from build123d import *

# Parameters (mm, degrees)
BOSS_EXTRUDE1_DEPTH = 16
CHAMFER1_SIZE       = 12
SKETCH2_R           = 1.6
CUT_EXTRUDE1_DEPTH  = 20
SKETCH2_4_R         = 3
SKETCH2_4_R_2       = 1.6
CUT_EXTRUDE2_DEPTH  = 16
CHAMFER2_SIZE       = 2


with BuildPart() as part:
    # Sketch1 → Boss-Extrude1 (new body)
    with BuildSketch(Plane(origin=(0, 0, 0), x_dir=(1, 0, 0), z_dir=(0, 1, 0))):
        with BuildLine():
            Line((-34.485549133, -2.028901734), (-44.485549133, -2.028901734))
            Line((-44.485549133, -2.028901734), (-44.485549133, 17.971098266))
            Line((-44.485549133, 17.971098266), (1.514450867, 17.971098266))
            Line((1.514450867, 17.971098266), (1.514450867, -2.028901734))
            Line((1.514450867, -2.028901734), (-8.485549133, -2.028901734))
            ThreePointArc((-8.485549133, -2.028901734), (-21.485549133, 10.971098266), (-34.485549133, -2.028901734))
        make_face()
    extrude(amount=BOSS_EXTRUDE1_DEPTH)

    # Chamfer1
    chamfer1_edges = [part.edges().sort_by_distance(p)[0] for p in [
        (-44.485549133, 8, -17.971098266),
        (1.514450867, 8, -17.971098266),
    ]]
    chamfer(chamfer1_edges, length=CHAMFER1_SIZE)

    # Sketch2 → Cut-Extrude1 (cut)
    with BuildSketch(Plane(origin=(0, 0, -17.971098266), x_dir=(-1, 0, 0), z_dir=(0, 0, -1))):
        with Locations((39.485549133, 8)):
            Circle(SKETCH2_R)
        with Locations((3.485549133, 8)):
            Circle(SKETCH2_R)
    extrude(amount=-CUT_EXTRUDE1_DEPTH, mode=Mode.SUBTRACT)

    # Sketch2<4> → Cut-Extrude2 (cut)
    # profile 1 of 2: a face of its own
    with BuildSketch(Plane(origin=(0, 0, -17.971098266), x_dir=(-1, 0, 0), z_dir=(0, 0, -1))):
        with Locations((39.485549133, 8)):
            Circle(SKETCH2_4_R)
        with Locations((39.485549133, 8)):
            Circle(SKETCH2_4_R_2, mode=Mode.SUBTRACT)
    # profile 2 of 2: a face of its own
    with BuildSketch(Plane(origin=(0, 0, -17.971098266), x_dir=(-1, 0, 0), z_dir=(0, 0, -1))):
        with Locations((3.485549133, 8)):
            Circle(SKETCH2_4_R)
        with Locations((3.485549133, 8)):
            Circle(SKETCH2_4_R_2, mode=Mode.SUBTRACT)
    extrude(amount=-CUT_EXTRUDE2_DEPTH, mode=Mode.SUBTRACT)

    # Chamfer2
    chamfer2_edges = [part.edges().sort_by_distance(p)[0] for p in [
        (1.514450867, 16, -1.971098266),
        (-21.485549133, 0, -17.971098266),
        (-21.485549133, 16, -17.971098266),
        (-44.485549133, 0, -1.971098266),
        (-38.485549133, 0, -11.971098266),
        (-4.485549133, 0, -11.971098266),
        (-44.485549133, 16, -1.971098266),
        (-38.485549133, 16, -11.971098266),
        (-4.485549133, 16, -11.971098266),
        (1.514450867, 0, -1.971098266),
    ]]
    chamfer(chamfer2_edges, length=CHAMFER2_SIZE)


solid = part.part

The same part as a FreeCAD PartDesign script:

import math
import FreeCAD as App
import Part
import Sketcher
from FreeCAD import Vector


def edges_at(feature, points):
    """Names of the edges that pass closest to the given points."""
    edges = feature.Shape.Edges
    near = lambda p: min(range(len(edges)), key=lambda i: edges[i].distToShape(Part.Vertex(*p))[0])
    return sorted({f"Edge{near(p) + 1}" for p in points})

doc = App.newDocument("Part")
body = doc.addObject("PartDesign::Body", "Body")

# Sketch on XZ plane
sketch1 = body.newObject("Sketcher::SketchObject", "Sketch")
sketch1.AttachmentSupport = (doc.getObject("XZ_Plane"), [""])
sketch1.MapMode = "FlatFace"
sketch1.addGeometry(Part.LineSegment(Vector(-44, 2, 0), Vector(-34, 2, 0)), False)
sketch1.addGeometry(Part.ArcOfCircle(Part.Circle(Vector(-21, 2, 0), Vector(0, 0, 1), 13), math.radians(180), math.radians(360)), False)
sketch1.addGeometry(Part.LineSegment(Vector(-8, 2, 0), Vector(2, 2, 0)), False)
sketch1.addGeometry(Part.LineSegment(Vector(2, 2, 0), Vector(2, -18, 0)), False)
sketch1.addGeometry(Part.LineSegment(Vector(2, -18, 0), Vector(-44, -18, 0)), False)
sketch1.addGeometry(Part.LineSegment(Vector(-44, -18, 0), Vector(-44, 2, 0)), False)
sketch1.addConstraint(Sketcher.Constraint("Coincident", 0, 2, 1, 1))
sketch1.addConstraint(Sketcher.Constraint("Coincident", 1, 2, 2, 1))
sketch1.addConstraint(Sketcher.Constraint("Coincident", 2, 2, 3, 1))
sketch1.addConstraint(Sketcher.Constraint("Coincident", 3, 2, 4, 1))
sketch1.addConstraint(Sketcher.Constraint("Coincident", 4, 2, 5, 1))
sketch1.addConstraint(Sketcher.Constraint("Coincident", 5, 2, 0, 1))
sketch1.addConstraint(Sketcher.Constraint("Horizontal", 0))
sketch1.addConstraint(Sketcher.Constraint("Horizontal", 2))
sketch1.addConstraint(Sketcher.Constraint("Vertical", 3))
sketch1.addConstraint(Sketcher.Constraint("Horizontal", 4))
sketch1.addConstraint(Sketcher.Constraint("Vertical", 5))
sketch1.addConstraint(Sketcher.Constraint("Horizontal", 1, 3, 0, 2))
sketch1.addConstraint(Sketcher.Constraint("Horizontal", 0, 2, 1, 2))
sketch1.addConstraint(Sketcher.Constraint("Equal", 0, 2))
sketch1.addConstraint(Sketcher.Constraint("Radius", 1, 13.0))
sketch1.addConstraint(Sketcher.Constraint("DistanceX", 0, 1, 0, 2, 10.0))
sketch1.addConstraint(Sketcher.Constraint("DistanceY", 3, 2, 3, 1, 20.0))
sketch1.addConstraint(Sketcher.Constraint("DistanceY", -1, 1, 1, 3, 2.028902))
sketch1.addConstraint(Sketcher.Constraint("DistanceX", 1, 3, -1, 1, 21.485549))
pad1 = body.newObject("PartDesign::Pad", "Pad")
pad1.Profile = sketch1
pad1.Length = 16
pad1.Reversed = True
doc.recompute()

chamfer = body.newObject("PartDesign::Chamfer", "Chamfer")
chamfer.Base = (pad1, edges_at(pad1, [(-44.486, 8, -17.971), (1.514, 8, -17.971)]))
chamfer.Size = 12

# Sketch on XY plane
sketch2 = body.newObject("Sketcher::SketchObject", "Sketch001")
sketch2.AttachmentSupport = (doc.getObject("XY_Plane"), [""])
sketch2.MapMode = "FlatFace"
sketch2.AttachmentOffset = App.Placement(Vector(0, 0, -17.971098), App.Rotation())
sketch2.addGeometry(Part.Circle(Vector(-39.5, 8, 0), Vector(0, 0, 1), 1.6), False)
sketch2.addGeometry(Part.Circle(Vector(-3.5, 8, 0), Vector(0, 0, 1), 1.6), False)
sketch2.addConstraint(Sketcher.Constraint("Equal", 0, 1))
sketch2.addConstraint(Sketcher.Constraint("Horizontal", 0, 3, 1, 3))
sketch2.addConstraint(Sketcher.Constraint("Diameter", 0, 3.2))
sketch2.addConstraint(Sketcher.Constraint("DistanceY", -1, 1, 0, 3, 8.0))
sketch2.addConstraint(Sketcher.Constraint("DistanceX", 0, 3, 1, 3, 36.0))
sketch2.addConstraint(Sketcher.Constraint("DistanceX", 0, 3, -1, 1, 39.485549))
pocket1 = body.newObject("PartDesign::Pocket", "Pocket")
pocket1.Profile = sketch2
pocket1.Length = 20
pocket1.Reversed = True

# Sketch on XY plane
sketch3 = body.newObject("Sketcher::SketchObject", "Sketch002")
sketch3.AttachmentSupport = (doc.getObject("XY_Plane"), [""])
sketch3.MapMode = "FlatFace"
sketch3.AttachmentOffset = App.Placement(Vector(0, 0, -17.971098), App.Rotation())
sketch3.addGeometry(Part.Circle(Vector(-39.5, 8, 0), Vector(0, 0, 1), 3), False)
sketch3.addGeometry(Part.Circle(Vector(-39.5, 8, 0), Vector(0, 0, 1), 1.6), False)
sketch3.addGeometry(Part.Circle(Vector(-3.5, 8, 0), Vector(0, 0, 1), 3), False)
sketch3.addGeometry(Part.Circle(Vector(-3.5, 8, 0), Vector(0, 0, 1), 1.6), False)
sketch3.addConstraint(Sketcher.Constraint("Coincident", 1, 3, 0, 3))
sketch3.addConstraint(Sketcher.Constraint("Coincident", 3, 3, 2, 3))
sketch3.addConstraint(Sketcher.Constraint("Equal", 0, 2))
sketch3.addConstraint(Sketcher.Constraint("Equal", 1, 3))
sketch3.addConstraint(Sketcher.Constraint("Horizontal", 1, 3, 2, 3))
sketch3.addConstraint(Sketcher.Constraint("Diameter", 0, 6.0))
sketch3.addConstraint(Sketcher.Constraint("Diameter", 1, 3.2))
sketch3.addConstraint(Sketcher.Constraint("DistanceY", -1, 1, 0, 3, 8.0))
sketch3.addConstraint(Sketcher.Constraint("DistanceX", 0, 3, 2, 3, 36.0))
sketch3.addConstraint(Sketcher.Constraint("DistanceX", 0, 3, -1, 1, 39.485549))
pocket2 = body.newObject("PartDesign::Pocket", "Pocket001")
pocket2.Profile = sketch3
pocket2.Length = 16
pocket2.Reversed = True
doc.recompute()

chamfer2 = body.newObject("PartDesign::Chamfer", "Chamfer001")
chamfer2.Base = (pocket2, edges_at(pocket2, [
    (1.514, 16, -1.971),
    (-21.486, 0, -17.971),
    (-21.486, 16, -17.971),
    (-44.486, 0, -1.971),
    (-38.486, 0, -11.971),
    (-4.486, 0, -11.971),
    (-44.486, 16, -1.971),
    (-38.486, 16, -11.971),
    (-4.486, 16, -11.971),
    (1.514, 0, -1.971),
]))
chamfer2.Size = 2

doc.recompute()
